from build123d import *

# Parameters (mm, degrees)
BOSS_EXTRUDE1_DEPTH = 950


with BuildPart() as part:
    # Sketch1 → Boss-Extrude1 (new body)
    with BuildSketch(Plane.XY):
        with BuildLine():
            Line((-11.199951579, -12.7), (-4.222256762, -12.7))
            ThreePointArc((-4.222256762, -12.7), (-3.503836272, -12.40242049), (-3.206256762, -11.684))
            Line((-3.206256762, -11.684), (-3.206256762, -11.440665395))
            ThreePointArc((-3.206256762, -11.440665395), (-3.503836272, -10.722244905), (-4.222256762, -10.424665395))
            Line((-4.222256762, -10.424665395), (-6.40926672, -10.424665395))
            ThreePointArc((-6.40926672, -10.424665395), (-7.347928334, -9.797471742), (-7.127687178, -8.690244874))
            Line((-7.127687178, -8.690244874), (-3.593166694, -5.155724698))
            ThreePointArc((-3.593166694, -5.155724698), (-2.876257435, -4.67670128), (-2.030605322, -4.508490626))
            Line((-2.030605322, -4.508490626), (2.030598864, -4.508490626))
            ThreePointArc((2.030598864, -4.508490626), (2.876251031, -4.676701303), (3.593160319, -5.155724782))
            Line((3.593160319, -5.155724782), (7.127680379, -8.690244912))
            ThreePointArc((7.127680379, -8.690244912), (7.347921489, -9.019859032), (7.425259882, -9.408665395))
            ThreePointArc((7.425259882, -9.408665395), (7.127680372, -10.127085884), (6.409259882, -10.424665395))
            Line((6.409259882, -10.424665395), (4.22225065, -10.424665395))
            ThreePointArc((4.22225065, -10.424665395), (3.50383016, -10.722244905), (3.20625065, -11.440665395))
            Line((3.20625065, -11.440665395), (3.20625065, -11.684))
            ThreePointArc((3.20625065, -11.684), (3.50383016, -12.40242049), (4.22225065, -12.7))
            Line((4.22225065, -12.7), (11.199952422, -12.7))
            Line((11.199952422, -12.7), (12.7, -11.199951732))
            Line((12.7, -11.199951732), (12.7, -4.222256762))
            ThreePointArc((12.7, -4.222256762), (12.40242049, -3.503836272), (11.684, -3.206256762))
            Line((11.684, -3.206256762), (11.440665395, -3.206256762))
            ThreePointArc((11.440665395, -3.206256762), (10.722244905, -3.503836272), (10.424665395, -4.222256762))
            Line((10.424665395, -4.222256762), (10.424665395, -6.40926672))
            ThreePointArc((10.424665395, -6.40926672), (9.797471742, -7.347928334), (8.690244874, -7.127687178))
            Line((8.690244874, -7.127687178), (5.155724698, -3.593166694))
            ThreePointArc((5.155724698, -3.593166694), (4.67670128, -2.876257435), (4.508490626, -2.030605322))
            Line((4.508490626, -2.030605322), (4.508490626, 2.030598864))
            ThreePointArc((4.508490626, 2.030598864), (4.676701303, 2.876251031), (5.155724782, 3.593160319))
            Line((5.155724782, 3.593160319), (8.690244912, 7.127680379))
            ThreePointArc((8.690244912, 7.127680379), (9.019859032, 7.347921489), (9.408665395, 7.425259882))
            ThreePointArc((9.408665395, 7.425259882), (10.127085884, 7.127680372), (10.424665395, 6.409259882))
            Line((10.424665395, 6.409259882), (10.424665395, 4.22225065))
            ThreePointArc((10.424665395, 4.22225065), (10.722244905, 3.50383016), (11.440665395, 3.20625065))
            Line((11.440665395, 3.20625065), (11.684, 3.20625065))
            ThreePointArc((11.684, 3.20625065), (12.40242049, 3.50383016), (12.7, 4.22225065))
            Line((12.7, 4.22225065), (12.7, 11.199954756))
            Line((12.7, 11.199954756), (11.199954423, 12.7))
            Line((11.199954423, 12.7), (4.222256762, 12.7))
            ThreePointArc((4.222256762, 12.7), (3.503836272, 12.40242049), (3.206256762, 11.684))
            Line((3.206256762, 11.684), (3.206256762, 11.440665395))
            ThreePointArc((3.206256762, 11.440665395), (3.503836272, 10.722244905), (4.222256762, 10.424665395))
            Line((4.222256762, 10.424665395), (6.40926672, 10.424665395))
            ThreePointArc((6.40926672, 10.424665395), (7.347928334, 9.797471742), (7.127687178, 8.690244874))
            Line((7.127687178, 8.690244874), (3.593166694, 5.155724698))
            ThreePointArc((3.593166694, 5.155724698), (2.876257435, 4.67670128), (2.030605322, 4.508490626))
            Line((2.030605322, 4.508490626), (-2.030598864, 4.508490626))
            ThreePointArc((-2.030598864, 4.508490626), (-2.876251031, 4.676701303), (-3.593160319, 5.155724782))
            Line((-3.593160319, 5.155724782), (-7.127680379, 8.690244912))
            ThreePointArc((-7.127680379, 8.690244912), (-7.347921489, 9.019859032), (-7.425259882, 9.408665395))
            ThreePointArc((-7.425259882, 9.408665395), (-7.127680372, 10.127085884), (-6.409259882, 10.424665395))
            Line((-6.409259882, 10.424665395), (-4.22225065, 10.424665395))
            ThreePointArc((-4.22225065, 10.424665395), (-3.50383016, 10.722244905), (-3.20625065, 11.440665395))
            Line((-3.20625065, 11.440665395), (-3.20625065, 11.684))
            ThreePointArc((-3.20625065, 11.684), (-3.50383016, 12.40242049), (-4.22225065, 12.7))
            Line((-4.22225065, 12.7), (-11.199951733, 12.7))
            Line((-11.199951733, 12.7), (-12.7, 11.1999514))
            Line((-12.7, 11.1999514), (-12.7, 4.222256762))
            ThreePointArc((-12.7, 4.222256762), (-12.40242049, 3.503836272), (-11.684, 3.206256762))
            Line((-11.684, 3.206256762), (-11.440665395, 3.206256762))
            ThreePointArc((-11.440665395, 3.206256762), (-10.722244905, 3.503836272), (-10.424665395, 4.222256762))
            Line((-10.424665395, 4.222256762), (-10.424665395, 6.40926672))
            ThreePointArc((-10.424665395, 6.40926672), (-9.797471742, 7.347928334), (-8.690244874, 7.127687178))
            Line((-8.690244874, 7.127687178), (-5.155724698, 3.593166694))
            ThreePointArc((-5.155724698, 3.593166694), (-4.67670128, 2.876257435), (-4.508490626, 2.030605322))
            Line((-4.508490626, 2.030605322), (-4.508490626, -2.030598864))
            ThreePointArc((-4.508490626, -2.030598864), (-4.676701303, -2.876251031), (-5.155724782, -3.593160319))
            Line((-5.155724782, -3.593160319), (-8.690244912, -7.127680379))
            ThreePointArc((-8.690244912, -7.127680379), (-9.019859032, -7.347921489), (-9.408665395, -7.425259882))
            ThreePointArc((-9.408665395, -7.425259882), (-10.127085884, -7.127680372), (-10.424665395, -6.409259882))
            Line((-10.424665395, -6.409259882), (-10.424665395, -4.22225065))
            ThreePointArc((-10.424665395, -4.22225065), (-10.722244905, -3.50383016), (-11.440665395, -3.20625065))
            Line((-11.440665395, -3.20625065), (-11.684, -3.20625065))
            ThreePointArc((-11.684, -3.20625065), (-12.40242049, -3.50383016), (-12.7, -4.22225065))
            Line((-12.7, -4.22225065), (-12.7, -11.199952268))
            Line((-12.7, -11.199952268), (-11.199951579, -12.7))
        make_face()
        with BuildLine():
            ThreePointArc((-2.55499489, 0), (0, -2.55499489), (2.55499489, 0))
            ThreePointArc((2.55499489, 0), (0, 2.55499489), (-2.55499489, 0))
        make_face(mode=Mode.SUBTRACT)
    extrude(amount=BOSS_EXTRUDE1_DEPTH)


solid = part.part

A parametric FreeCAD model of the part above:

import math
import FreeCAD as App
import Part
import Sketcher
from FreeCAD import Vector

doc = App.newDocument("Part")
body = doc.addObject("PartDesign::Body", "Body")

sketch1 = body.newObject("Sketcher::SketchObject", "Sketch")
sketch1.AttachmentSupport = (doc.getObject("XY_Plane"), [""])
sketch1.MapMode = "FlatFace"
sketch1.addGeometry([
    Part.LineSegment(Vector(-11.2, -12.7, 0), Vector(-4.22, -12.7, 0)),
    Part.ArcOfCircle(Part.Circle(Vector(-4.22, -11.68, 0), Vector(0, 0, 1), 1.02), math.radians(-90), math.radians(0)),
    Part.LineSegment(Vector(-3.21, -11.68, 0), Vector(-3.21, -11.44, 0)),
    Part.ArcOfCircle(Part.Circle(Vector(-4.22, -11.44, 0), Vector(0, 0, 1), 1.02), math.radians(0), math.radians(90)),
    Part.LineSegment(Vector(-4.22, -10.42, 0), Vector(-6.41, -10.42, 0)),
    Part.ArcOfCircle(Part.Circle(Vector(-6.41, -9.41, 0), Vector(0, 0, 1), 1.02), math.radians(135), math.radians(270)),
    Part.LineSegment(Vector(-7.13, -8.69, 0), Vector(-3.59, -5.16, 0)),
    Part.ArcOfCircle(Part.Circle(Vector(-2.03, -6.72, 0), Vector(0, 0, 1), 2.21), math.radians(90), math.radians(135)),
    Part.LineSegment(Vector(-2.03, -4.51, 0), Vector(2.03, -4.51, 0)),
    Part.ArcOfCircle(Part.Circle(Vector(2.03, -6.72, 0), Vector(0, 0, 1), 2.21), math.radians(45), math.radians(90)),
    Part.LineSegment(Vector(3.59, -5.16, 0), Vector(7.13, -8.69, 0)),
    Part.ArcOfCircle(Part.Circle(Vector(6.41, -9.41, 0), Vector(0, 0, 1), 1.02), math.radians(0), math.radians(45)),
    Part.ArcOfCircle(Part.Circle(Vector(6.41, -9.41, 0), Vector(0, 0, 1), 1.02), math.radians(-90), math.radians(0)),
    Part.LineSegment(Vector(6.41, -10.42, 0), Vector(4.22, -10.42, 0)),
    Part.ArcOfCircle(Part.Circle(Vector(4.22, -11.44, 0), Vector(0, 0, 1), 1.02), math.radians(90), math.radians(180)),
    Part.LineSegment(Vector(3.21, -11.44, 0), Vector(3.21, -11.68, 0)),
    Part.ArcOfCircle(Part.Circle(Vector(4.22, -11.68, 0), Vector(0, 0, 1), 1.02), math.radians(180), math.radians(270)),
    Part.LineSegment(Vector(4.22, -12.7, 0), Vector(11.2, -12.7, 0)),
    Part.LineSegment(Vector(11.2, -12.7, 0), Vector(12.7, -11.2, 0)),
    Part.LineSegment(Vector(12.7, -11.2, 0), Vector(12.7, -4.22, 0)),
    Part.ArcOfCircle(Part.Circle(Vector(11.68, -4.22, 0), Vector(0, 0, 1), 1.02), math.radians(0), math.radians(90)),
    Part.LineSegment(Vector(11.68, -3.21, 0), Vector(11.44, -3.21, 0)),
    Part.ArcOfCircle(Part.Circle(Vector(11.44, -4.22, 0), Vector(0, 0, 1), 1.02), math.radians(90), math.radians(180)),
    Part.LineSegment(Vector(10.42, -4.22, 0), Vector(10.42, -6.41, 0)),
    Part.ArcOfCircle(Part.Circle(Vector(9.41, -6.41, 0), Vector(0, 0, 1), 1.02), math.radians(-135), math.radians(0)),
    Part.LineSegment(Vector(8.69, -7.13, 0), Vector(5.16, -3.59, 0)),
    Part.ArcOfCircle(Part.Circle(Vector(6.72, -2.03, 0), Vector(0, 0, 1), 2.21), math.radians(180), math.radians(225)),
    Part.LineSegment(Vector(4.51, -2.03, 0), Vector(4.51, 2.03, 0)),
    Part.ArcOfCircle(Part.Circle(Vector(6.72, 2.03, 0), Vector(0, 0, 1), 2.21), math.radians(135), math.radians(180)),
    Part.LineSegment(Vector(5.16, 3.59, 0), Vector(8.69, 7.13, 0)),
    Part.ArcOfCircle(Part.Circle(Vector(9.41, 6.41, 0), Vector(0, 0, 1), 1.02), math.radians(90), math.radians(135)),
    Part.ArcOfCircle(Part.Circle(Vector(9.41, 6.41, 0), Vector(0, 0, 1), 1.02), math.radians(0), math.radians(90)),
    Part.LineSegment(Vector(10.42, 6.41, 0), Vector(10.42, 4.22, 0)),
    Part.ArcOfCircle(Part.Circle(Vector(11.44, 4.22, 0), Vector(0, 0, 1), 1.02), math.radians(180), math.radians(270)),
    Part.LineSegment(Vector(11.44, 3.21, 0), Vector(11.68, 3.21, 0)),
    Part.ArcOfCircle(Part.Circle(Vector(11.68, 4.22, 0), Vector(0, 0, 1), 1.02), math.radians(-90), math.radians(0)),
    Part.LineSegment(Vector(12.7, 4.22, 0), Vector(12.7, 11.2, 0)),
    Part.LineSegment(Vector(12.7, 11.2, 0), Vector(11.2, 12.7, 0)),
    Part.LineSegment(Vector(11.2, 12.7, 0), Vector(4.22, 12.7, 0)),
    Part.ArcOfCircle(Part.Circle(Vector(4.22, 11.68, 0), Vector(0, 0, 1), 1.02), math.radians(90), math.radians(180)),
    Part.LineSegment(Vector(3.21, 11.68, 0), Vector(3.21, 11.44, 0)),
    Part.ArcOfCircle(Part.Circle(Vector(4.22, 11.44, 0), Vector(0, 0, 1), 1.02), math.radians(180), math.radians(270)),
    Part.LineSegment(Vector(4.22, 10.42, 0), Vector(6.41, 10.42, 0)),
    Part.ArcOfCircle(Part.Circle(Vector(6.41, 9.41, 0), Vector(0, 0, 1), 1.02), math.radians(-45), math.radians(90)),
    Part.LineSegment(Vector(7.13, 8.69, 0), Vector(3.59, 5.16, 0)),
    Part.ArcOfCircle(Part.Circle(Vector(2.03, 6.72, 0), Vector(0, 0, 1), 2.21), math.radians(-90), math.radians(-45)),
    Part.LineSegment(Vector(2.03, 4.51, 0), Vector(-2.03, 4.51, 0)),
    Part.ArcOfCircle(Part.Circle(Vector(-2.03, 6.72, 0), Vector(0, 0, 1), 2.21), math.radians(-135), math.radians(-90)),
    Part.LineSegment(Vector(-3.59, 5.16, 0), Vector(-7.13, 8.69, 0)),
    Part.ArcOfCircle(Part.Circle(Vector(-6.41, 9.41, 0), Vector(0, 0, 1), 1.02), math.radians(180), math.radians(225)),
    Part.ArcOfCircle(Part.Circle(Vector(-6.41, 9.41, 0), Vector(0, 0, 1), 1.02), math.radians(90), math.radians(180)),
    Part.LineSegment(Vector(-6.41, 10.42, 0), Vector(-4.22, 10.42, 0)),
    Part.ArcOfCircle(Part.Circle(Vector(-4.22, 11.44, 0), Vector(0, 0, 1), 1.02), math.radians(-90), math.radians(0)),
    Part.LineSegment(Vector(-3.21, 11.44, 0), Vector(-3.21, 11.68, 0)),
    Part.ArcOfCircle(Part.Circle(Vector(-4.22, 11.68, 0), Vector(0, 0, 1), 1.02), math.radians(0), math.radians(90)),
    Part.LineSegment(Vector(-4.22, 12.7, 0), Vector(-11.2, 12.7, 0)),
    Part.LineSegment(Vector(-11.2, 12.7, 0), Vector(-12.7, 11.2, 0)),
    Part.LineSegment(Vector(-12.7, 11.2, 0), Vector(-12.7, 4.22, 0)),
    Part.ArcOfCircle(Part.Circle(Vector(-11.68, 4.22, 0), Vector(0, 0, 1), 1.02), math.radians(180), math.radians(270)),
    Part.LineSegment(Vector(-11.68, 3.21, 0), Vector(-11.44, 3.21, 0)),
    Part.ArcOfCircle(Part.Circle(Vector(-11.44, 4.22, 0), Vector(0, 0, 1), 1.02), math.radians(-90), math.radians(0)),
    Part.LineSegment(Vector(-10.42, 4.22, 0), Vector(-10.42, 6.41, 0)),
    Part.ArcOfCircle(Part.Circle(Vector(-9.41, 6.41, 0), Vector(0, 0, 1), 1.02), math.radians(45), math.radians(180)),
    Part.LineSegment(Vector(-8.69, 7.13, 0), Vector(-5.16, 3.59, 0)),
    Part.ArcOfCircle(Part.Circle(Vector(-6.72, 2.03, 0), Vector(0, 0, 1), 2.21), math.radians(0), math.radians(45)),
    Part.LineSegment(Vector(-4.51, 2.03, 0), Vector(-4.51, -2.03, 0)),
    Part.ArcOfCircle(Part.Circle(Vector(-6.72, -2.03, 0), Vector(0, 0, 1), 2.21), math.radians(-45), math.radians(0)),
    Part.LineSegment(Vector(-5.16, -3.59, 0), Vector(-8.69, -7.13, 0)),
    Part.ArcOfCircle(Part.Circle(Vector(-9.41, -6.41, 0), Vector(0, 0, 1), 1.02), math.radians(-90), math.radians(-45)),
    Part.ArcOfCircle(Part.Circle(Vector(-9.41, -6.41, 0), Vector(0, 0, 1), 1.02), math.radians(-180), math.radians(-90)),
    Part.LineSegment(Vector(-10.42, -6.41, 0), Vector(-10.42, -4.22, 0)),
    Part.ArcOfCircle(Part.Circle(Vector(-11.44, -4.22, 0), Vector(0, 0, 1), 1.02), math.radians(0), math.radians(90)),
    Part.LineSegment(Vector(-11.44, -3.21, 0), Vector(-11.68, -3.21, 0)),
    Part.ArcOfCircle(Part.Circle(Vector(-11.68, -4.22, 0), Vector(0, 0, 1), 1.02), math.radians(90), math.radians(180)),
    Part.LineSegment(Vector(-12.7, -4.22, 0), Vector(-12.7, -11.2, 0)),
    Part.LineSegment(Vector(-12.7, -11.2, 0), Vector(-11.2, -12.7, 0)),
    Part.Circle(Vector(0, 0, 0), Vector(0, 0, 1), 2.55),
], False)
sketch1.addConstraint([
    Sketcher.Constraint("Tangent", 0, 2, 1, 1),
    Sketcher.Constraint("Tangent", 1, 2, 2, 1),
    Sketcher.Constraint("Tangent", 2, 2, 3, 1),
    Sketcher.Constraint("Tangent", 3, 2, 4, 1),
    Sketcher.Constraint("Tangent", 4, 2, 5, 2),
    Sketcher.Constraint("Tangent", 5, 1, 6, 1),
    Sketcher.Constraint("Tangent", 6, 2, 7, 2),
    Sketcher.Constraint("Tangent", 7, 1, 8, 1),
    Sketcher.Constraint("Tangent", 8, 2, 9, 2),
    Sketcher.Constraint("Tangent", 9, 1, 10, 1),
    Sketcher.Constraint("Tangent", 10, 2, 11, 2),
    Sketcher.Constraint("Tangent", 11, 1, 12, 2),
    Sketcher.Constraint("Tangent", 12, 1, 13, 1),
    Sketcher.Constraint("Tangent", 13, 2, 14, 1),
    Sketcher.Constraint("Tangent", 14, 2, 15, 1),
    Sketcher.Constraint("Tangent", 15, 2, 16, 1),
    Sketcher.Constraint("Tangent", 16, 2, 17, 1),
    Sketcher.Constraint("Coincident", 17, 2, 18, 1),
    Sketcher.Constraint("Coincident", 18, 2, 19, 1),
    Sketcher.Constraint("Tangent", 19, 2, 20, 1),
    Sketcher.Constraint("Tangent", 20, 2, 21, 1),
    Sketcher.Constraint("Tangent", 21, 2, 22, 1),
    Sketcher.Constraint("Tangent", 22, 2, 23, 1),
    Sketcher.Constraint("Tangent", 23, 2, 24, 2),
    Sketcher.Constraint("Tangent", 24, 1, 25, 1),
    Sketcher.Constraint("Tangent", 25, 2, 26, 2),
    Sketcher.Constraint("Tangent", 26, 1, 27, 1),
    Sketcher.Constraint("Tangent", 27, 2, 28, 2),
    Sketcher.Constraint("Tangent", 28, 1, 29, 1),
    Sketcher.Constraint("Tangent", 29, 2, 30, 2),
    Sketcher.Constraint("Tangent", 30, 1, 31, 2),
    Sketcher.Constraint("Tangent", 31, 1, 32, 1),
    Sketcher.Constraint("Tangent", 32, 2, 33, 1),
    Sketcher.Constraint("Tangent", 33, 2, 34, 1),
    Sketcher.Constraint("Tangent", 34, 2, 35, 1),
    Sketcher.Constraint("Tangent", 35, 2, 36, 1),
    Sketcher.Constraint("Coincident", 36, 2, 37, 1),
    Sketcher.Constraint("Coincident", 37, 2, 38, 1),
    Sketcher.Constraint("Tangent", 38, 2, 39, 1),
    Sketcher.Constraint("Tangent", 39, 2, 40, 1),
    Sketcher.Constraint("Tangent", 40, 2, 41, 1),
    Sketcher.Constraint("Tangent", 41, 2, 42, 1),
    Sketcher.Constraint("Tangent", 42, 2, 43, 2),
    Sketcher.Constraint("Tangent", 43, 1, 44, 1),
    Sketcher.Constraint("Tangent", 44, 2, 45, 2),
    Sketcher.Constraint("Tangent", 45, 1, 46, 1),
    Sketcher.Constraint("Tangent", 46, 2, 47, 2),
    Sketcher.Constraint("Tangent", 47, 1, 48, 1),
    Sketcher.Constraint("Tangent", 48, 2, 49, 2),
    Sketcher.Constraint("Tangent", 49, 1, 50, 2),
    Sketcher.Constraint("Tangent", 50, 1, 51, 1),
    Sketcher.Constraint("Tangent", 51, 2, 52, 1),
    Sketcher.Constraint("Tangent", 52, 2, 53, 1),
    Sketcher.Constraint("Tangent", 53, 2, 54, 1),
    Sketcher.Constraint("Tangent", 54, 2, 55, 1),
    Sketcher.Constraint("Coincident", 55, 2, 56, 1),
    Sketcher.Constraint("Coincident", 56, 2, 57, 1),
    Sketcher.Constraint("Tangent", 57, 2, 58, 1),
    Sketcher.Constraint("Tangent", 58, 2, 59, 1),
    Sketcher.Constraint("Tangent", 59, 2, 60, 1),
    Sketcher.Constraint("Tangent", 60, 2, 61, 1),
    Sketcher.Constraint("Tangent", 61, 2, 62, 2),
    Sketcher.Constraint("Tangent", 62, 1, 63, 1),
    Sketcher.Constraint("Tangent", 63, 2, 64, 2),
    Sketcher.Constraint("Tangent", 64, 1, 65, 1),
    Sketcher.Constraint("Tangent", 65, 2, 66, 2),
    Sketcher.Constraint("Tangent", 66, 1, 67, 1),
    Sketcher.Constraint("Tangent", 67, 2, 68, 2),
    Sketcher.Constraint("Tangent", 68, 1, 69, 2),
    Sketcher.Constraint("Tangent", 69, 1, 70, 1),
    Sketcher.Constraint("Tangent", 70, 2, 71, 1),
    Sketcher.Constraint("Tangent", 71, 2, 72, 1),
    Sketcher.Constraint("Tangent", 72, 2, 73, 1),
    Sketcher.Constraint("Tangent", 73, 2, 74, 1),
    Sketcher.Constraint("Coincident", 74, 2, 75, 1),
    Sketcher.Constraint("Coincident", 75, 2, 0, 1),
    Sketcher.Constraint("Horizontal", 0),
    Sketcher.Constraint("Vertical", 2),
    Sketcher.Constraint("Horizontal", 4),
    Sketcher.Constraint("Horizontal", 8),
    Sketcher.Constraint("Horizontal", 13),
    Sketcher.Constraint("Vertical", 15),
    Sketcher.Constraint("Horizontal", 17),
    Sketcher.Constraint("Vertical", 19),
    Sketcher.Constraint("Horizontal", 21),
    Sketcher.Constraint("Vertical", 23),
    Sketcher.Constraint("Vertical", 27),
    Sketcher.Constraint("Vertical", 32),
    Sketcher.Constraint("Horizontal", 34),
    Sketcher.Constraint("Vertical", 36),
    Sketcher.Constraint("Horizontal", 38),
    Sketcher.Constraint("Vertical", 40),
    Sketcher.Constraint("Horizontal", 42),
    Sketcher.Constraint("Horizontal", 46),
    Sketcher.Constraint("Horizontal", 51),
    Sketcher.Constraint("Vertical", 53),
    Sketcher.Constraint("Horizontal", 55),
    Sketcher.Constraint("Vertical", 57),
    Sketcher.Constraint("Horizontal", 59),
    Sketcher.Constraint("Vertical", 61),
    Sketcher.Constraint("Vertical", 65),
    Sketcher.Constraint("Vertical", 70),
    Sketcher.Constraint("Horizontal", 72),
    Sketcher.Constraint("Vertical", 74),
    Sketcher.Constraint("Coincident", 76, 3, -1, 1),
    Sketcher.Constraint("Equal", 1, 3),
    Sketcher.Constraint("Equal", 3, 5),
    Sketcher.Constraint("Equal", 7, 9),
    Sketcher.Constraint("Equal", 5, 11),
    Sketcher.Constraint("Equal", 11, 12),
    Sketcher.Constraint("Equal", 12, 14),
    Sketcher.Constraint("Equal", 14, 16),
    Sketcher.Constraint("Equal", 16, 20),
    Sketcher.Constraint("Equal", 20, 22),
    Sketcher.Constraint("Equal", 22, 24),
    Sketcher.Constraint("Equal", 9, 26),
    Sketcher.Constraint("Equal", 26, 28),
    Sketcher.Constraint("Equal", 24, 30),
    Sketcher.Constraint("Equal", 30, 31),
    Sketcher.Constraint("Equal", 31, 33),
    Sketcher.Constraint("Equal", 33, 35),
    Sketcher.Constraint("Equal", 35, 39),
    Sketcher.Constraint("Equal", 39, 41),
    Sketcher.Constraint("Equal", 41, 43),
    Sketcher.Constraint("Equal", 28, 45),
    Sketcher.Constraint("Equal", 45, 47),
    Sketcher.Constraint("Equal", 43, 49),
    Sketcher.Constraint("Equal", 49, 50),
    Sketcher.Constraint("Equal", 50, 52),
    Sketcher.Constraint("Equal", 52, 54),
    Sketcher.Constraint("Equal", 54, 58),
    Sketcher.Constraint("Equal", 58, 60),
    Sketcher.Constraint("Equal", 60, 62),
    Sketcher.Constraint("Equal", 47, 64),
    Sketcher.Constraint("Equal", 64, 66),
    Sketcher.Constraint("Equal", 62, 68),
    Sketcher.Constraint("Equal", 68, 69),
    Sketcher.Constraint("Equal", 69, 71),
    Sketcher.Constraint("Equal", 71, 73),
    Sketcher.Constraint("Symmetric", 1, 3, 39, 3, -1, 1),
    Sketcher.Constraint("Symmetric", 5, 3, 43, 3, -1, 1),
    Sketcher.Constraint("Symmetric", 7, 3, 45, 3, -1, 1),
    Sketcher.Constraint("Symmetric", 11, 3, 49, 3, -1, 1),
    Sketcher.Constraint("Symmetric", 16, 3, 54, 3, -1, 1),
    Sketcher.Constraint("Symmetric", 20, 3, 58, 3, -1, 1),
    Sketcher.Constraint("Symmetric", 24, 3, 62, 3, -1, 1),
    Sketcher.Constraint("Symmetric", 26, 3, 64, 3, -1, 1),
    Sketcher.Constraint("Symmetric", 30, 3, 68, 3, -1, 1),
    Sketcher.Constraint("Symmetric", 35, 3, 73, 3, -1, 1),
    Sketcher.Constraint("Symmetric", 5, 3, 11, 3, -2),
    Sketcher.Constraint("Symmetric", 1, 3, 16, 3, -2),
    Sketcher.Constraint("Symmetric", 35, 3, 58, 3, -2),
    Sketcher.Constraint("Symmetric", 30, 3, 62, 3, -2),
    Sketcher.Constraint("Perpendicular", 6, 10),
    Sketcher.Constraint("Perpendicular", 10, 18),
    Sketcher.Constraint("Perpendicular", 18, 25),
    Sketcher.Constraint("Perpendicular", 25, 29),
    Sketcher.Constraint("Perpendicular", 29, 37),
    Sketcher.Constraint("Perpendicular", 44, 48),
    Sketcher.Constraint("Perpendicular", 48, 56),
    Sketcher.Constraint("Perpendicular", 63, 67),
    Sketcher.Constraint("Perpendicular", 67, 75),
    Sketcher.Constraint("Horizontal", 6, 2, 9, 1),
    Sketcher.Constraint("Horizontal", 12, 3, 11, 1),
    Sketcher.Constraint("Horizontal", 50, 3, 49, 1),
    Sketcher.Constraint("Horizontal", 18, 2, 74, 2),
    Sketcher.Constraint("Vertical", 31, 3, 30, 1),
    Sketcher.Constraint("Vertical", 69, 3, 68, 1),
    Sketcher.Constraint("Vertical", 55, 2, 75, 2),
    Sketcher.Constraint("Equal", 72, 2),
    Sketcher.Constraint("Equal", 0, 19),
    Sketcher.Constraint("Equal", 51, 23),
    Sketcher.Constraint("Equal", 46, 27),
    Sketcher.Constraint("Equal", 10, 25),
    Sketcher.Constraint("Radius", 1, 1.016),
    Sketcher.Constraint("DistanceY", 0, 2, -1, 1, 12.7),
    Sketcher.Constraint("Diameter", 76, 5.10999),
    Sketcher.Constraint("DistanceX", 17, 1, 17, 2, 6.977702),
    Sketcher.Constraint("Radius", 7, 2.209796),
    Sketcher.Constraint("DistanceX", 4, 2, 4, 1, 2.18701),
    Sketcher.Constraint("DistanceX", -1, 1, 9, 3, 2.030599),
    Sketcher.Constraint("Distance", 18, 2.121388),
    Sketcher.Constraint("DistanceX", 21, 2, 21, 1, 0.243335),
    Sketcher.Constraint("DistanceX", 38, 2, 38, 1, 6.977698),
])
pad1 = body.newObject("PartDesign::Pad", "Pad")
pad1.Profile = sketch1
pad1.Length = 950

doc.recompute()
